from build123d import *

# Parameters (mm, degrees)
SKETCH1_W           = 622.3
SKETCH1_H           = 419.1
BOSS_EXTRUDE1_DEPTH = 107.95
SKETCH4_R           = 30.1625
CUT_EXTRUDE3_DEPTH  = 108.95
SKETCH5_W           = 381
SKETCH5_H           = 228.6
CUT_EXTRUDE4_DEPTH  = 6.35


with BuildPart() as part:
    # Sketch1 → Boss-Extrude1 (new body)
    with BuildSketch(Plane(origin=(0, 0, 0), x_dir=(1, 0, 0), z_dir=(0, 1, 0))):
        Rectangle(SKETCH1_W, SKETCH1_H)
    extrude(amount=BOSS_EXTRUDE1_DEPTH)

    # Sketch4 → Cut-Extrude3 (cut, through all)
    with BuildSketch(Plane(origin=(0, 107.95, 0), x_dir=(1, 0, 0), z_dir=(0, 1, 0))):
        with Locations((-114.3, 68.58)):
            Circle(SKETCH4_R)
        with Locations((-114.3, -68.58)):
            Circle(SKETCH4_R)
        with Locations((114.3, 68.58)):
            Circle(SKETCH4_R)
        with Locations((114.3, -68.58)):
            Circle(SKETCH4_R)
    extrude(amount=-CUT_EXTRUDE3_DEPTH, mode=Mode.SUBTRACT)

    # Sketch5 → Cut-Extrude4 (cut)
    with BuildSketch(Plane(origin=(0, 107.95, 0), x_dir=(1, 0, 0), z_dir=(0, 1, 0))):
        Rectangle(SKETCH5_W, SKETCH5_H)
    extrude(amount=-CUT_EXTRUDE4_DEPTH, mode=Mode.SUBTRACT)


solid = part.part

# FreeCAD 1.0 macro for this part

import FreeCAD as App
import Part
import Sketcher

V = App.Vector
Q = App.Units.Quantity


def add_polygon(sketch, points):
    """Adds a closed chain of lines whose ends are joined by coincident constraints."""
    first, n = sketch.GeometryCount, len(points)
    for a, b in zip(points, points[1:] + points[:1]):
        sketch.addGeometry(Part.LineSegment(App.Vector(*a, 0), App.Vector(*b, 0)), False)
    for i in range(n):
        sketch.addConstraint(Sketcher.Constraint("Coincident", first + i, 2, first + (i + 1) % n, 1))

doc = App.newDocument("Part")
params = doc.addObject("Spreadsheet::Sheet", "Params")
for row, (alias, value) in enumerate([
    ("sketch1_width", "24.5 in"),
    ("sketch1_height", "16.5 in"),
    ("pad1_length", "4.25 in"),
    ("sketch2_diameter", "2.375 in"),
    ("sketch3_width", "15 in"),
    ("sketch3_height", "9 in"),
    ("pocket2_length", "0.25 in"),
], start=1):
    params.set(f"A{row}", alias)
    params.set(f"B{row}", "=" + value)
    params.setAlias(f"B{row}", alias)

body = doc.addObject("PartDesign::Body", "Body")

# Sketch on XZ plane
sketch1 = doc.addObject("Sketcher::SketchObject", "Sketch")
body.addObject(sketch1)
sketch1.AttachmentSupport = (doc.XZ_Plane, [""])
sketch1.MapMode = "FlatFace"
add_polygon(sketch1, [(-311, -210), (-311, 210), (311, 210), (311, -210)])  # lines 0-3
sketch1.addConstraint([
    Sketcher.Constraint("Vertical", 0),
    Sketcher.Constraint("Horizontal", 1),
    Sketcher.Constraint("Vertical", 2),
    Sketcher.Constraint("Horizontal", 3),
    Sketcher.Constraint("Symmetric", 0, 2, 2, 2, -1, 1),
    Sketcher.Constraint("DistanceX", 1, 1, 1, 2, Q("24.5 in")),
    Sketcher.Constraint("DistanceY", 0, 1, 0, 2, Q("16.5 in")),
])
sketch1.setExpression("Constraints[9]", "Params.sketch1_width")
sketch1.setExpression("Constraints[10]", "Params.sketch1_height")
pad1 = doc.addObject("PartDesign::Pad", "Pad")
body.addObject(pad1)
pad1.Profile = sketch1
pad1.setExpression("Length", "Params.pad1_length")
pad1.Reversed = True

# Sketch on XZ plane
sketch2 = doc.addObject("Sketcher::SketchObject", "Sketch001")
body.addObject(sketch2)
sketch2.AttachmentSupport = (doc.XZ_Plane, [""])
sketch2.MapMode = "FlatFace"
sketch2.AttachmentOffset = App.Placement(V(0, 0, -4.25 * 25.4), App.Rotation())
sketch2.addGeometry([
    Part.Circle(V(-114, -69, 0), V(0, 0, 1), 30),
    Part.Circle(V(-114, 69, 0), V(0, 0, 1), 30),
    Part.Circle(V(114, -69, 0), V(0, 0, 1), 30),
    Part.Circle(V(114, 69, 0), V(0, 0, 1), 30),
], False)
sketch2.addConstraint([
    Sketcher.Constraint("Equal", 0, 1),
    Sketcher.Constraint("Equal", 1, 2),
    Sketcher.Constraint("Equal", 2, 3),
    Sketcher.Constraint("Symmetric", 1, 3, 2, 3, -1, 1),
    Sketcher.Constraint("Symmetric", 0, 3, 3, 3, -1, 1),
    Sketcher.Constraint("Symmetric", 0, 3, 2, 3, -2),
    Sketcher.Constraint("Diameter", 0, Q("2.375 in")),
    Sketcher.Constraint("DistanceX", 0, 3, 2, 3, Q("9 in")),
    Sketcher.Constraint("DistanceY", 0, 3, -1, 1, Q("2.7 in")),
])
sketch2.setExpression("Constraints[6]", "Params.sketch2_diameter")
pocket1 = doc.addObject("PartDesign::Pocket", "Pocket")
body.addObject(pocket1)
pocket1.Profile = sketch2
pocket1.Type = "ThroughAll"
pocket1.Reversed = True

# Sketch on XZ plane
sketch3 = doc.addObject("Sketcher::SketchObject", "Sketch002")
body.addObject(sketch3)
sketch3.AttachmentSupport = (doc.XZ_Plane, [""])
sketch3.MapMode = "FlatFace"
sketch3.AttachmentOffset = App.Placement(V(0, 0, -4.25 * 25.4), App.Rotation())
add_polygon(sketch3, [(-190, -114), (-190, 114), (190, 114), (190, -114)])  # lines 0-3
sketch3.addConstraint([
    Sketcher.Constraint("Vertical", 0),
    Sketcher.Constraint("Horizontal", 1),
    Sketcher.Constraint("Vertical", 2),
    Sketcher.Constraint("Horizontal", 3),
    Sketcher.Constraint("Symmetric", 0, 2, 2, 2, -1, 1),
    Sketcher.Constraint("DistanceX", 1, 1, 1, 2, Q("15 in")),
    Sketcher.Constraint("DistanceY", 0, 1, 0, 2, Q("9 in")),
])
sketch3.setExpression("Constraints[9]", "Params.sketch3_width")
sketch3.setExpression("Constraints[10]", "Params.sketch3_height")
pocket2 = doc.addObject("PartDesign::Pocket", "Pocket001")
body.addObject(pocket2)
pocket2.Profile = sketch3
pocket2.setExpression("Length", "Params.pocket2_length")
pocket2.Reversed = True

doc.recompute()
